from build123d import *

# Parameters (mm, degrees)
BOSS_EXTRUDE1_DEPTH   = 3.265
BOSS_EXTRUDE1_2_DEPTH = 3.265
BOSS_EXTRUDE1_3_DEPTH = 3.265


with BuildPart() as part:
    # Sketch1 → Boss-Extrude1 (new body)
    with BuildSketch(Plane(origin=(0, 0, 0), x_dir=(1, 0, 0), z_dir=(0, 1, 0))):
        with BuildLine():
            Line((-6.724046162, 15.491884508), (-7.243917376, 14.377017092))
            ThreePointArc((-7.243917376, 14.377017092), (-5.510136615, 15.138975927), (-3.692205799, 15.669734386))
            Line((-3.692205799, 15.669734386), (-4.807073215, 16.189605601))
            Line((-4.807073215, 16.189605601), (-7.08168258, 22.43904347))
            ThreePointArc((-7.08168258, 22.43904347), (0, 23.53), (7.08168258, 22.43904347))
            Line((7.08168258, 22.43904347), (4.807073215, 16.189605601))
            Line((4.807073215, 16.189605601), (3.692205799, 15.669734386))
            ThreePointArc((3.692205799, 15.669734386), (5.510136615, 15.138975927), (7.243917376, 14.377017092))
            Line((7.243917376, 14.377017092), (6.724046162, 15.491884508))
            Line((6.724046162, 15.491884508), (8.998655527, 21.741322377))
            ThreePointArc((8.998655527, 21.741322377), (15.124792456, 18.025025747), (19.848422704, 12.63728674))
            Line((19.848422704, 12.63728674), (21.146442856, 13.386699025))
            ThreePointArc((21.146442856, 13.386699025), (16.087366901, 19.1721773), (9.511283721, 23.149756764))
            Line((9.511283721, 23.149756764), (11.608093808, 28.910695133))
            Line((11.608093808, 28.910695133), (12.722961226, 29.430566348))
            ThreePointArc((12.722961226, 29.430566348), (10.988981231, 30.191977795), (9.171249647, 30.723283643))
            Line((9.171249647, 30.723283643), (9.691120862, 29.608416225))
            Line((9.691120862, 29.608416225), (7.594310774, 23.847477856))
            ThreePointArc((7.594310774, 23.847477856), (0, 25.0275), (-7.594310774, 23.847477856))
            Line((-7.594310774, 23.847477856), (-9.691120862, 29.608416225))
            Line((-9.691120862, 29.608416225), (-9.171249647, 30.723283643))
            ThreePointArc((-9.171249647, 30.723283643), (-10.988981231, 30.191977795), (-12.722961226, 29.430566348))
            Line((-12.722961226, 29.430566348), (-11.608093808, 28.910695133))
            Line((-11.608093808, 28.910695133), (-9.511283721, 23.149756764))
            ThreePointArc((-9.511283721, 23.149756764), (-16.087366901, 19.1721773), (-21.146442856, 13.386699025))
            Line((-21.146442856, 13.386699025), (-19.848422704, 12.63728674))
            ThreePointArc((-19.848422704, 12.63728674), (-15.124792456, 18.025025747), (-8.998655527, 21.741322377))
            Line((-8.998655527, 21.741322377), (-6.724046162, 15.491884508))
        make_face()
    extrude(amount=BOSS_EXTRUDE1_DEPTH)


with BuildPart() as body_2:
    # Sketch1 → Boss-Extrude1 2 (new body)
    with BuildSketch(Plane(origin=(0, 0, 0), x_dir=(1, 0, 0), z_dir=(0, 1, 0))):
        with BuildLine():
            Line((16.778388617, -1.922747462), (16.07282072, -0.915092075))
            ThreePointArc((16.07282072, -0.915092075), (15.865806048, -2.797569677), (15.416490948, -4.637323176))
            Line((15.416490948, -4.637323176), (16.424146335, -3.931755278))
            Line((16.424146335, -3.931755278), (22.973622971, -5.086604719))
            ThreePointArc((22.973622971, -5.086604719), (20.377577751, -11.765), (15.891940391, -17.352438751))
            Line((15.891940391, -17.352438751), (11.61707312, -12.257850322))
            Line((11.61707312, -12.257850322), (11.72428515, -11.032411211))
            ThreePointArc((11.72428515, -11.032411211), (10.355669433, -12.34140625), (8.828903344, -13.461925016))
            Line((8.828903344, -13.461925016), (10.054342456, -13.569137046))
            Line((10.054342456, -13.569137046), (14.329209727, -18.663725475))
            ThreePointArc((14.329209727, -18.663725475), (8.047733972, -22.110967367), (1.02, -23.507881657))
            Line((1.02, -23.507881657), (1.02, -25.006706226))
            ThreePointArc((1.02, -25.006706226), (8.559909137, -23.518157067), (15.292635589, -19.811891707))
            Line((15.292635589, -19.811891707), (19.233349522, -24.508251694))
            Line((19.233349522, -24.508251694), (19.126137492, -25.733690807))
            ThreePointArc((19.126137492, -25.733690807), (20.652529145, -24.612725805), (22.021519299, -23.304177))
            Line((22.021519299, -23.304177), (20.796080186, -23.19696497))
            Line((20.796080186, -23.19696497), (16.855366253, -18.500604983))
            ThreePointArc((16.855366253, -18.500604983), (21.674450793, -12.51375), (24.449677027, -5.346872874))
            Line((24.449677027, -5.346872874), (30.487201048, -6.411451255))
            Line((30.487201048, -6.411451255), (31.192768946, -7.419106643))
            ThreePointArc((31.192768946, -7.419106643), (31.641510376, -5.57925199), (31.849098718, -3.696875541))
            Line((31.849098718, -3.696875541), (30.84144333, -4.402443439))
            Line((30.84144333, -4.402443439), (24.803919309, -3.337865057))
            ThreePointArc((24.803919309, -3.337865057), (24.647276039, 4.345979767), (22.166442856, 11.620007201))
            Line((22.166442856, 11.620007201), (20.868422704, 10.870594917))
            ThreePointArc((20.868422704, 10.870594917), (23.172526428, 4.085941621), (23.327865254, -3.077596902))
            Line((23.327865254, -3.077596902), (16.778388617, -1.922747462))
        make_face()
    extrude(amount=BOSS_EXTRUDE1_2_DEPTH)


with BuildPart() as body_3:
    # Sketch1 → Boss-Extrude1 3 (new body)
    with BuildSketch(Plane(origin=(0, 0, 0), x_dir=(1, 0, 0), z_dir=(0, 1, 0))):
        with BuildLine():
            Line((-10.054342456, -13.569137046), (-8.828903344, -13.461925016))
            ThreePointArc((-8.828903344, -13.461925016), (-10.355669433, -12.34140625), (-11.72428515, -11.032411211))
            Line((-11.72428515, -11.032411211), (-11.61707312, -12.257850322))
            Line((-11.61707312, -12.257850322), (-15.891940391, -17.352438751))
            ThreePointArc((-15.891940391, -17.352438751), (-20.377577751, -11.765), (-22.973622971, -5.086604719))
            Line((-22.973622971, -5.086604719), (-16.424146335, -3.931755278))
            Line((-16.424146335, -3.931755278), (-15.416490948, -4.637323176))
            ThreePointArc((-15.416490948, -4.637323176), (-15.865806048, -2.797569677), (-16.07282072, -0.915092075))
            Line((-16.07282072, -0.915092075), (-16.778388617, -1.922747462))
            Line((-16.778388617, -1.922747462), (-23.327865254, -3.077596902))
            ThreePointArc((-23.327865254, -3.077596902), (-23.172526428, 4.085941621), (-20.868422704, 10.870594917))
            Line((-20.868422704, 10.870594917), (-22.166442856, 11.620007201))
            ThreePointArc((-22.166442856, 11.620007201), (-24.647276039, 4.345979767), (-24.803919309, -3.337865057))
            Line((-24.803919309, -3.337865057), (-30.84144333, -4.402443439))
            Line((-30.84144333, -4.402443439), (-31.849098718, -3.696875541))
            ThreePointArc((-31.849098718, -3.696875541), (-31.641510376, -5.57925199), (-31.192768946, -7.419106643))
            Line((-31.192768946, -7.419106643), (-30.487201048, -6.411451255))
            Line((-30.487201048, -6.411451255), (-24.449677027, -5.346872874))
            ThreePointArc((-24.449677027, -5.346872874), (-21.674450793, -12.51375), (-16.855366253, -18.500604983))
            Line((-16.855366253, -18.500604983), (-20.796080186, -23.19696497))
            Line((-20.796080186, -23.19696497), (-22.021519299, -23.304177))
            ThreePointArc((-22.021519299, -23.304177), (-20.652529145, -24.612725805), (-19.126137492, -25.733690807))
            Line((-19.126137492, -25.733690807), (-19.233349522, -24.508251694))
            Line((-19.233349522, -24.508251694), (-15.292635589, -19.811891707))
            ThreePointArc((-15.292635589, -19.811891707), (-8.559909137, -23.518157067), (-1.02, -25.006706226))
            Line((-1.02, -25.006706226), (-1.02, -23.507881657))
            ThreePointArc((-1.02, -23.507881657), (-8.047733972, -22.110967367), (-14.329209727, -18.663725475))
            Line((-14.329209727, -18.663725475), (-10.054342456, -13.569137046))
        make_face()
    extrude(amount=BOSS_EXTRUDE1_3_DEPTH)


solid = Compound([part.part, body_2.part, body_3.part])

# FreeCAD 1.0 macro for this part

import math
import FreeCAD as App
import Part
import Sketcher

V = App.Vector
Q = App.Units.Quantity

doc = App.newDocument("Part")
body = doc.addObject("PartDesign::Body", "Body")

sketch1 = body.newObject("Sketcher::SketchObject", "Sketch")
sketch1.AttachmentSupport = (doc.getObject("XZ_Plane"), [""])
sketch1.MapMode = "FlatFace"
sketch1.addGeometry([
    Part.LineSegment(V(-6.724046, -15.491885, 0), V(-7.243917, -14.377017, 0)),
    Part.ArcOfCircle(Part.Circle(V(-0.524402, -1.440784, 0), V(0, 0, 1), 14.577312), math.radians(-117.448883), math.radians(-102.551117)),
    Part.LineSegment(V(-3.692206, -15.669734, 0), V(-4.807073, -16.189606, 0)),
    Part.LineSegment(V(-4.807073, -16.189606, 0), V(-7.081683, -22.439043, 0)),
    Part.ArcOfCircle(Part.Circle(V(0, 0, 0), V(0, 0, 1), 23.53), math.radians(-107.515512), math.radians(-72.484488)),
    Part.LineSegment(V(7.081683, -22.439043, 0), V(4.807073, -16.189606, 0)),
    Part.LineSegment(V(4.807073, -16.189606, 0), V(3.692206, -15.669734, 0)),
    Part.ArcOfCircle(Part.Circle(V(0.524402, -1.440784, 0), V(0, 0, 1), 14.577312), math.radians(-77.448883), math.radians(-62.551117)),
    Part.LineSegment(V(7.243917, -14.377017, 0), V(6.724046, -15.491885, 0)),
    Part.LineSegment(V(6.724046, -15.491885, 0), V(8.998656, -21.741322, 0)),
    Part.ArcOfCircle(Part.Circle(V(0, 0, 0), V(0, 0, 1), 23.53), math.radians(-67.515512), math.radians(-32.484488)),
    Part.LineSegment(V(19.848423, -12.637287, 0), V(21.146443, -13.386699, 0)),
    Part.ArcOfCircle(Part.Circle(V(0, 0, 0), V(0, 0, 1), 25.0275), math.radians(-67.664254), math.radians(-32.335746)),
    Part.LineSegment(V(9.511284, -23.149757, 0), V(11.608094, -28.910695, 0)),
    Part.LineSegment(V(11.608094, -28.910695, 0), V(12.722961, -29.430566, 0)),
    Part.ArcOfCircle(Part.Circle(V(5.979726, -16.429162, 0), V(0, 0, 1), 14.646082), math.radians(-77.41371), math.radians(-62.58629)),
    Part.LineSegment(V(9.17125, -30.723284, 0), V(9.691121, -29.608416, 0)),
    Part.LineSegment(V(9.691121, -29.608416, 0), V(7.594311, -23.847478, 0)),
    Part.ArcOfCircle(Part.Circle(V(0, 0, 0), V(0, 0, 1), 25.0275), math.radians(-107.664254), math.radians(-72.335746)),
    Part.LineSegment(V(-7.594311, -23.847478, 0), V(-9.691121, -29.608416, 0)),
    Part.LineSegment(V(-9.691121, -29.608416, 0), V(-9.17125, -30.723284, 0)),
    Part.ArcOfCircle(Part.Circle(V(-5.979726, -16.429162, 0), V(0, 0, 1), 14.646082), math.radians(-117.41371), math.radians(-102.58629)),
    Part.LineSegment(V(-12.722961, -29.430566, 0), V(-11.608094, -28.910695, 0)),
    Part.LineSegment(V(-11.608094, -28.910695, 0), V(-9.511284, -23.149757, 0)),
    Part.ArcOfCircle(Part.Circle(V(0, 0, 0), V(0, 0, 1), 25.0275), math.radians(-147.664254), math.radians(-112.335746)),
    Part.LineSegment(V(-21.146443, -13.386699, 0), V(-19.848423, -12.637287, 0)),
    Part.ArcOfCircle(Part.Circle(V(0, 0, 0), V(0, 0, 1), 23.53), math.radians(-147.515512), math.radians(-112.484488)),
    Part.LineSegment(V(-8.998656, -21.741322, 0), V(-6.724046, -15.491885, 0)),
], False)
sketch1.addConstraint([
    Sketcher.Constraint("Coincident", 0, 2, 1, 1),
    Sketcher.Constraint("Coincident", 1, 2, 2, 1),
    Sketcher.Constraint("Coincident", 2, 2, 3, 1),
    Sketcher.Constraint("Coincident", 3, 2, 4, 1),
    Sketcher.Constraint("Coincident", 4, 2, 5, 1),
    Sketcher.Constraint("Coincident", 5, 2, 6, 1),
    Sketcher.Constraint("Coincident", 6, 2, 7, 1),
    Sketcher.Constraint("Coincident", 7, 2, 8, 1),
    Sketcher.Constraint("Coincident", 8, 2, 9, 1),
    Sketcher.Constraint("Coincident", 9, 2, 10, 1),
    Sketcher.Constraint("Coincident", 10, 2, 11, 1),
    Sketcher.Constraint("Coincident", 11, 2, 12, 2),
    Sketcher.Constraint("Coincident", 12, 1, 13, 1),
    Sketcher.Constraint("Coincident", 13, 2, 14, 1),
    Sketcher.Constraint("Coincident", 14, 2, 15, 2),
    Sketcher.Constraint("Coincident", 15, 1, 16, 1),
    Sketcher.Constraint("Coincident", 16, 2, 17, 1),
    Sketcher.Constraint("Coincident", 17, 2, 18, 2),
    Sketcher.Constraint("Coincident", 18, 1, 19, 1),
    Sketcher.Constraint("Coincident", 19, 2, 20, 1),
    Sketcher.Constraint("Coincident", 20, 2, 21, 2),
    Sketcher.Constraint("Coincident", 21, 1, 22, 1),
    Sketcher.Constraint("Coincident", 22, 2, 23, 1),
    Sketcher.Constraint("Coincident", 23, 2, 24, 2),
    Sketcher.Constraint("Coincident", 24, 1, 25, 1),
    Sketcher.Constraint("Coincident", 25, 2, 26, 1),
    Sketcher.Constraint("Coincident", 26, 2, 27, 1),
    Sketcher.Constraint("Coincident", 27, 2, 0, 1),
    Sketcher.Constraint("Coincident", 4, 3, -1, 1),
    Sketcher.Constraint("Coincident", 10, 3, -1, 1),
    Sketcher.Constraint("Coincident", 12, 3, -1, 1),
    Sketcher.Constraint("Coincident", 18, 3, -1, 1),
    Sketcher.Constraint("Coincident", 24, 3, -1, 1),
    Sketcher.Constraint("Coincident", 26, 3, -1, 1),
    Sketcher.Constraint("Radius", 4, 23.53),
    Sketcher.Constraint("Radius", 10, 23.53),
    Sketcher.Constraint("Radius", 26, 23.53),
    Sketcher.Constraint("Radius", 12, 25.0275),
    Sketcher.Constraint("Radius", 18, 25.0275),
    Sketcher.Constraint("Radius", 24, 25.0275),
    Sketcher.Constraint("Radius", 1, 14.577312),
    Sketcher.Constraint("Radius", 7, 14.577312),
    Sketcher.Constraint("Radius", 15, 14.646082),
    Sketcher.Constraint("Radius", 21, 14.646082),
    Sketcher.Constraint("DistanceY", 11, 2, -1, 1, 13.386699),
    Sketcher.Constraint("DistanceY", 24, 1, -1, 1, 13.386699),
    Sketcher.Constraint("DistanceX", 2, 2, 15, 3, 10.786799),
    Sketcher.Constraint("DistanceX", 21, 3, 5, 2, 10.786799),
    Sketcher.Constraint("DistanceX", 4, 2, 12, 1, 2.429601),
    Sketcher.Constraint("DistanceX", 23, 2, 3, 2, 2.429601),
    Sketcher.Constraint("Distance", 0, 1.23012),
    Sketcher.Constraint("Distance", 2, 1.23012),
    Sketcher.Constraint("Distance", 6, 1.23012),
    Sketcher.Constraint("Distance", 8, 1.23012),
    Sketcher.Constraint("Distance", 14, 1.23012),
    Sketcher.Constraint("Distance", 16, 1.23012),
    Sketcher.Constraint("Distance", 20, 1.23012),
    Sketcher.Constraint("Distance", 22, 1.23012),
    Sketcher.Constraint("DistanceX", -1, 1, 14, 2, 12.722961),
    Sketcher.Constraint("DistanceX", -1, 1, 15, 1, 9.17125),
    Sketcher.Constraint("DistanceX", -1, 1, 16, 2, 9.691121),
    Sketcher.Constraint("DistanceX", -1, 1, 17, 2, 7.594311),
    Sketcher.Constraint("DistanceX", 18, 1, -1, 1, 7.594311),
    Sketcher.Constraint("DistanceX", 19, 2, -1, 1, 9.691121),
    Sketcher.Constraint("DistanceX", 20, 2, -1, 1, 9.17125),
    Sketcher.Constraint("DistanceX", 21, 1, -1, 1, 12.722961),
    Sketcher.Constraint("DistanceY", 15, 3, 7, 3, 14.988378),
    Sketcher.Constraint("DistanceX", 1, 3, 15, 3, 6.504128),
    Sketcher.Constraint("DistanceY", 15, 3, 1, 3, 14.988378),
    Sketcher.Constraint("DistanceY", 21, 3, 1, 3, 14.988378),
    Sketcher.Constraint("DistanceX", 21, 3, 7, 3, 6.504128),
    Sketcher.Constraint("DistanceX", 0, 2, 21, 3, 1.264191),
    Sketcher.Constraint("DistanceX", 21, 3, 1, 2, 2.28752),
    Sketcher.Constraint("DistanceX", 1, 2, 15, 3, 9.671932),
    Sketcher.Constraint("DistanceY", 3, 2, 21, 3, 6.009881),
    Sketcher.Constraint("DistanceX", 3, 2, 2, 2, 2.274609),
    Sketcher.Constraint("DistanceY", 4, 2, 15, 3, 6.009881),
    Sketcher.Constraint("DistanceX", 1, 2, 4, 2, 10.773888),
    Sketcher.Constraint("DistanceY", 5, 2, 1, 2, 0.519871),
    Sketcher.Constraint("DistanceX", 15, 3, 7, 2, 1.264191),
    Sketcher.Constraint("DistanceX", 15, 3, 8, 2, 0.74432),
    Sketcher.Constraint("DistanceY", 4, 2, 9, 2, 0.697721),
    Sketcher.Constraint("DistanceY", 7, 2, 10, 2, 1.73973),
    Sketcher.Constraint("DistanceX", 12, 1, 13, 2, 2.09681),
    Sketcher.Constraint("DistanceY", 21, 1, 22, 2, 0.519871),
    Sketcher.Constraint("DistanceX", 24, 1, 25, 2, 1.29802),
    Sketcher.Constraint("DistanceX", 23, 2, 26, 2, 0.512628),
    Sketcher.Constraint("DistanceX", 27, 2, 21, 3, 0.74432),
])
pad1 = body.newObject("PartDesign::Pad", "Pad")
pad1.Profile = sketch1
pad1.Length = 3.265
pad1.Reversed = True
body2 = doc.addObject("PartDesign::Body", "Body001")

sketch2 = body2.newObject("Sketcher::SketchObject", "Sketch001")
sketch2.AttachmentSupport = (doc.getObject("XZ_Plane001"), [""])
sketch2.MapMode = "FlatFace"
sketch2.addGeometry([
    Part.LineSegment(V(16.8, 1.9, 0), V(16.1, 0.9, 0)),
    Part.ArcOfCircle(Part.Circle(V(1.5, 0.3, 0), V(0, 0, 1), 14.6), math.radians(2.55), math.radians(17.45)),
    Part.LineSegment(V(15.4, 4.6, 0), V(16.4, 3.9, 0)),
    Part.LineSegment(V(16.4, 3.9, 0), V(23, 5.1, 0)),
    Part.ArcOfCircle(Part.Circle(V(0, 0, 0), V(0, 0, 1), 23.5), math.radians(12), math.radians(48)),
    Part.LineSegment(V(15.9, 17.4, 0), V(11.6, 12.3, 0)),
    Part.LineSegment(V(11.6, 12.3, 0), V(11.7, 11, 0)),
    Part.ArcOfCircle(Part.Circle(V(1, 1.2, 0), V(0, 0, 1), 14.6), math.radians(42.55), math.radians(57.45)),
    Part.LineSegment(V(8.8, 13.5, 0), V(10.1, 13.6, 0)),
    Part.LineSegment(V(10.1, 13.6, 0), V(14.3, 18.7, 0)),
    Part.ArcOfCircle(Part.Circle(V(0, 0, 0), V(0, 0, 1), 23.5), math.radians(52), math.radians(88)),
    Part.LineSegment(V(1, 23.5, 0), V(1, 25, 0)),
    Part.ArcOfCircle(Part.Circle(V(0, 0, 0), V(0, 0, 1), 25), math.radians(52), math.radians(88)),
    Part.LineSegment(V(15.3, 19.8, 0), V(19.2, 24.5, 0)),
    Part.LineSegment(V(19.2, 24.5, 0), V(19.1, 25.7, 0)),
    Part.ArcOfCircle(Part.Circle(V(11.2, 13.4, 0), V(0, 0, 1), 14.6), math.radians(42.59), math.radians(57.41)),
    Part.LineSegment(V(22, 23.3, 0), V(20.8, 23.2, 0)),
    Part.LineSegment(V(20.8, 23.2, 0), V(16.9, 18.5, 0)),
    Part.ArcOfCircle(Part.Circle(V(0, 0, 0), V(0, 0, 1), 25), math.radians(12), math.radians(48)),
    Part.LineSegment(V(24.4, 5.3, 0), V(30.5, 6.4, 0)),
    Part.LineSegment(V(30.5, 6.4, 0), V(31.2, 7.4, 0)),
    Part.ArcOfCircle(Part.Circle(V(17.2, 3, 0), V(0, 0, 1), 14.6), math.radians(2.59), math.radians(17.41)),
    Part.LineSegment(V(31.8, 3.7, 0), V(30.8, 4.4, 0)),
    Part.LineSegment(V(30.8, 4.4, 0), V(24.8, 3.3, 0)),
    Part.ArcOfCircle(Part.Circle(V(0, 0, 0), V(0, 0, 1), 25), math.radians(-28), math.radians(8)),
    Part.LineSegment(V(22.2, -11.6, 0), V(20.9, -10.9, 0)),
    Part.ArcOfCircle(Part.Circle(V(0, 0, 0), V(0, 0, 1), 23.5), math.radians(-28), math.radians(8)),
    Part.LineSegment(V(23.3, 3.1, 0), V(16.8, 1.9, 0)),
], False)
sketch2.addConstraint([
    Sketcher.Constraint("Coincident", 0, 2, 1, 1),
    Sketcher.Constraint("Coincident", 1, 2, 2, 1),
    Sketcher.Constraint("Coincident", 2, 2, 3, 1),
    Sketcher.Constraint("Coincident", 3, 2, 4, 1),
    Sketcher.Constraint("Coincident", 4, 2, 5, 1),
    Sketcher.Constraint("Coincident", 5, 2, 6, 1),
    Sketcher.Constraint("Coincident", 6, 2, 7, 1),
    Sketcher.Constraint("Coincident", 7, 2, 8, 1),
    Sketcher.Constraint("Coincident", 8, 2, 9, 1),
    Sketcher.Constraint("Coincident", 9, 2, 10, 1),
    Sketcher.Constraint("Coincident", 10, 2, 11, 1),
    Sketcher.Constraint("Coincident", 11, 2, 12, 2),
    Sketcher.Constraint("Coincident", 12, 1, 13, 1),
    Sketcher.Constraint("Coincident", 13, 2, 14, 1),
    Sketcher.Constraint("Coincident", 14, 2, 15, 2),
    Sketcher.Constraint("Coincident", 15, 1, 16, 1),
    Sketcher.Constraint("Coincident", 16, 2, 17, 1),
    Sketcher.Constraint("Coincident", 17, 2, 18, 2),
    Sketcher.Constraint("Coincident", 18, 1, 19, 1),
    Sketcher.Constraint("Coincident", 19, 2, 20, 1),
    Sketcher.Constraint("Coincident", 20, 2, 21, 2),
    Sketcher.Constraint("Coincident", 21, 1, 22, 1),
    Sketcher.Constraint("Coincident", 22, 2, 23, 1),
    Sketcher.Constraint("Coincident", 23, 2, 24, 2),
    Sketcher.Constraint("Coincident", 24, 1, 25, 1),
    Sketcher.Constraint("Coincident", 25, 2, 26, 1),
    Sketcher.Constraint("Coincident", 26, 2, 27, 1),
    Sketcher.Constraint("Coincident", 27, 2, 0, 1),
    Sketcher.Constraint("Vertical", 11),
    Sketcher.Constraint("Coincident", 4, 3, -1, 1),
    Sketcher.Constraint("Coincident", 10, 3, -1, 1),
    Sketcher.Constraint("Coincident", 12, 3, -1, 1),
    Sketcher.Constraint("Coincident", 18, 3, -1, 1),
    Sketcher.Constraint("Coincident", 24, 3, -1, 1),
    Sketcher.Constraint("Coincident", 26, 3, -1, 1),
    Sketcher.Constraint("Equal", 1, 7),
    Sketcher.Constraint("Equal", 4, 10),
    Sketcher.Constraint("Equal", 12, 18),
    Sketcher.Constraint("Equal", 15, 21),
    Sketcher.Constraint("Equal", 18, 24),
    Sketcher.Constraint("Equal", 10, 26),
    Sketcher.Constraint("Perpendicular", 0, 2),
    Sketcher.Constraint("Perpendicular", 6, 8),
    Sketcher.Constraint("Parallel", 5, 9),
    Sketcher.Constraint("Parallel", 9, 13),
    Sketcher.Constraint("Perpendicular", 8, 14),
    Sketcher.Constraint("Perpendicular", 14, 16),
    Sketcher.Constraint("Parallel", 13, 17),
    Sketcher.Constraint("Parallel", 3, 19),
    Sketcher.Constraint("Perpendicular", 2, 20),
    Sketcher.Constraint("Perpendicular", 20, 22),
    Sketcher.Constraint("Parallel", 19, 23),
    Sketcher.Constraint("Parallel", 23, 27),
    Sketcher.Constraint("Equal", 0, 2),
    Sketcher.Constraint("Equal", 3, 5),
    Sketcher.Constraint("Equal", 2, 6),
    Sketcher.Constraint("Equal", 6, 8),
    Sketcher.Constraint("Equal", 5, 9),
    Sketcher.Constraint("Equal", 8, 14),
    Sketcher.Constraint("Equal", 14, 16),
    Sketcher.Constraint("Equal", 13, 17),
    Sketcher.Constraint("Equal", 17, 19),
    Sketcher.Constraint("Equal", 16, 20),
    Sketcher.Constraint("Equal", 20, 22),
    Sketcher.Constraint("Equal", 19, 23),
    Sketcher.Constraint("Equal", 9, 27),
    Sketcher.Constraint("Angle", 0, Q("-125 deg")),
    Sketcher.Constraint("Angle", 3, Q("10 deg")),
    Sketcher.Constraint("Angle", 5, Q("-130 deg")),
    Sketcher.Constraint("Angle", 6, Q("-85 deg")),
    Sketcher.Constraint("Angle", 25, Q("150 deg")),
    Sketcher.Constraint("Radius", 4, 23.53),
    Sketcher.Constraint("Radius", 12, 25.0275),
    Sketcher.Constraint("DistanceX", -1, 1, 10, 2, 1.02),
    Sketcher.Constraint("Radius", 1, 14.577312),
    Sketcher.Constraint("Radius", 15, 14.646083),
    Sketcher.Constraint("DistanceX", 15, 3, 9, 2, 3.091001),
    Sketcher.Constraint("DistanceX", -1, 1, 19, 2, 30.487201),
    Sketcher.Constraint("DistanceX", -1, 1, 21, 1, 31.849099),
    Sketcher.Constraint("DistanceY", 1, 2, 7, 2, 8.824602),
    Sketcher.Constraint("DistanceY", 8, 2, 4, 2, 3.783302),
    Sketcher.Constraint("DistanceY", 7, 2, 9, 2, 5.2018),
    Sketcher.Constraint("DistanceX", 12, 1, 14, 2, 3.833502),
    Sketcher.Constraint("DistanceY", 12, 1, 14, 2, 5.921799),
    Sketcher.Constraint("DistanceY", 3, 2, 20, 2, 2.332502),
    Sketcher.Constraint("DistanceY", 24, 1, 0, 2, 12.535099),
    Sketcher.Constraint("DistanceX", 0, 2, 25, 2, 4.795602),
    Sketcher.Constraint("DistanceY", -1, 1, 12, 1, 19.811892),
])
pad2 = body2.newObject("PartDesign::Pad", "Pad001")
pad2.Profile = sketch2
pad2.Length = 3.265
pad2.Reversed = True
body3 = doc.addObject("PartDesign::Body", "Body002")

sketch3 = body3.newObject("Sketcher::SketchObject", "Sketch002")
sketch3.AttachmentSupport = (doc.getObject("XZ_Plane002"), [""])
sketch3.MapMode = "FlatFace"
sketch3.addGeometry([
    Part.LineSegment(V(-10.1, 13.6, 0), V(-8.8, 13.5, 0)),
    Part.ArcOfCircle(Part.Circle(V(-1, 1.2, 0), V(0, 0, 1), 14.6), math.radians(122.55), math.radians(137.45)),
    Part.LineSegment(V(-11.7, 11, 0), V(-11.6, 12.3, 0)),
    Part.LineSegment(V(-11.6, 12.3, 0), V(-15.9, 17.4, 0)),
    Part.ArcOfCircle(Part.Circle(V(0, 0, 0), V(0, 0, 1), 23.5), math.radians(132), math.radians(168)),
    Part.LineSegment(V(-23, 5.1, 0), V(-16.4, 3.9, 0)),
    Part.LineSegment(V(-16.4, 3.9, 0), V(-15.4, 4.6, 0)),
    Part.ArcOfCircle(Part.Circle(V(-1.5, 0.3, 0), V(0, 0, 1), 14.6), math.radians(162.55), math.radians(177.45)),
    Part.LineSegment(V(-16.1, 0.9, 0), V(-16.8, 1.9, 0)),
    Part.LineSegment(V(-16.8, 1.9, 0), V(-23.3, 3.1, 0)),
    Part.ArcOfCircle(Part.Circle(V(0, 0, 0), V(0, 0, 1), 23.5), math.radians(172), math.radians(208)),
    Part.LineSegment(V(-20.9, -10.9, 0), V(-22.2, -11.6, 0)),
    Part.ArcOfCircle(Part.Circle(V(0, 0, 0), V(0, 0, 1), 25), math.radians(172), math.radians(208)),
    Part.LineSegment(V(-24.8, 3.3, 0), V(-30.8, 4.4, 0)),
    Part.LineSegment(V(-30.8, 4.4, 0), V(-31.8, 3.7, 0)),
    Part.ArcOfCircle(Part.Circle(V(-17.2, 3, 0), V(0, 0, 1), 14.6), math.radians(162.59), math.radians(177.41)),
    Part.LineSegment(V(-31.2, 7.4, 0), V(-30.5, 6.4, 0)),
    Part.LineSegment(V(-30.5, 6.4, 0), V(-24.4, 5.3, 0)),
    Part.ArcOfCircle(Part.Circle(V(0, 0, 0), V(0, 0, 1), 25), math.radians(132), math.radians(168)),
    Part.LineSegment(V(-16.9, 18.5, 0), V(-20.8, 23.2, 0)),
    Part.LineSegment(V(-20.8, 23.2, 0), V(-22, 23.3, 0)),
    Part.ArcOfCircle(Part.Circle(V(-11.2, 13.4, 0), V(0, 0, 1), 14.6), math.radians(122.59), math.radians(137.41)),
    Part.LineSegment(V(-19.1, 25.7, 0), V(-19.2, 24.5, 0)),
    Part.LineSegment(V(-19.2, 24.5, 0), V(-15.3, 19.8, 0)),
    Part.ArcOfCircle(Part.Circle(V(0, 0, 0), V(0, 0, 1), 25), math.radians(92), math.radians(128)),
    Part.LineSegment(V(-1, 25, 0), V(-1, 23.5, 0)),
    Part.ArcOfCircle(Part.Circle(V(0, 0, 0), V(0, 0, 1), 23.5), math.radians(92), math.radians(128)),
    Part.LineSegment(V(-14.3, 18.7, 0), V(-10.1, 13.6, 0)),
], False)
sketch3.addConstraint([
    Sketcher.Constraint("Coincident", 0, 2, 1, 1),
    Sketcher.Constraint("Coincident", 1, 2, 2, 1),
    Sketcher.Constraint("Coincident", 2, 2, 3, 1),
    Sketcher.Constraint("Coincident", 3, 2, 4, 1),
    Sketcher.Constraint("Coincident", 4, 2, 5, 1),
    Sketcher.Constraint("Coincident", 5, 2, 6, 1),
    Sketcher.Constraint("Coincident", 6, 2, 7, 1),
    Sketcher.Constraint("Coincident", 7, 2, 8, 1),
    Sketcher.Constraint("Coincident", 8, 2, 9, 1),
    Sketcher.Constraint("Coincident", 9, 2, 10, 1),
    Sketcher.Constraint("Coincident", 10, 2, 11, 1),
    Sketcher.Constraint("Coincident", 11, 2, 12, 2),
    Sketcher.Constraint("Coincident", 12, 1, 13, 1),
    Sketcher.Constraint("Coincident", 13, 2, 14, 1),
    Sketcher.Constraint("Coincident", 14, 2, 15, 2),
    Sketcher.Constraint("Coincident", 15, 1, 16, 1),
    Sketcher.Constraint("Coincident", 16, 2, 17, 1),
    Sketcher.Constraint("Coincident", 17, 2, 18, 2),
    Sketcher.Constraint("Coincident", 18, 1, 19, 1),
    Sketcher.Constraint("Coincident", 19, 2, 20, 1),
    Sketcher.Constraint("Coincident", 20, 2, 21, 2),
    Sketcher.Constraint("Coincident", 21, 1, 22, 1),
    Sketcher.Constraint("Coincident", 22, 2, 23, 1),
    Sketcher.Constraint("Coincident", 23, 2, 24, 2),
    Sketcher.Constraint("Coincident", 24, 1, 25, 1),
    Sketcher.Constraint("Coincident", 25, 2, 26, 1),
    Sketcher.Constraint("Coincident", 26, 2, 27, 1),
    Sketcher.Constraint("Coincident", 27, 2, 0, 1),
    Sketcher.Constraint("Vertical", 25),
    Sketcher.Constraint("Coincident", 4, 3, -1, 1),
    Sketcher.Constraint("Coincident", 10, 3, -1, 1),
    Sketcher.Constraint("Coincident", 12, 3, -1, 1),
    Sketcher.Constraint("Coincident", 18, 3, -1, 1),
    Sketcher.Constraint("Coincident", 24, 3, -1, 1),
    Sketcher.Constraint("Coincident", 26, 3, -1, 1),
    Sketcher.Constraint("Equal", 1, 7),
    Sketcher.Constraint("Equal", 4, 10),
    Sketcher.Constraint("Equal", 12, 18),
    Sketcher.Constraint("Equal", 15, 21),
    Sketcher.Constraint("Equal", 18, 24),
    Sketcher.Constraint("Equal", 10, 26),
    Sketcher.Constraint("Perpendicular", 0, 2),
    Sketcher.Constraint("Perpendicular", 6, 8),
    Sketcher.Constraint("Parallel", 5, 9),
    Sketcher.Constraint("Parallel", 9, 13),
    Sketcher.Constraint("Perpendicular", 8, 14),
    Sketcher.Constraint("Perpendicular", 14, 16),
    Sketcher.Constraint("Parallel", 13, 17),
    Sketcher.Constraint("Parallel", 3, 19),
    Sketcher.Constraint("Perpendicular", 2, 20),
    Sketcher.Constraint("Perpendicular", 20, 22),
    Sketcher.Constraint("Parallel", 19, 23),
    Sketcher.Constraint("Parallel", 23, 27),
    Sketcher.Constraint("Equal", 0, 2),
    Sketcher.Constraint("Equal", 3, 5),
    Sketcher.Constraint("Equal", 2, 6),
    Sketcher.Constraint("Equal", 6, 8),
    Sketcher.Constraint("Equal", 5, 9),
    Sketcher.Constraint("Equal", 8, 14),
    Sketcher.Constraint("Equal", 14, 16),
    Sketcher.Constraint("Equal", 13, 17),
    Sketcher.Constraint("Equal", 17, 19),
    Sketcher.Constraint("Equal", 16, 20),
    Sketcher.Constraint("Equal", 20, 22),
    Sketcher.Constraint("Equal", 19, 23),
    Sketcher.Constraint("Equal", 9, 27),
    Sketcher.Constraint("Angle", 0, Q("-5 deg")),
    Sketcher.Constraint("Angle", 3, Q("130 deg")),
    Sketcher.Constraint("Angle", 5, Q("-10 deg")),
    Sketcher.Constraint("Angle", 6, Q("35 deg")),
    Sketcher.Constraint("Angle", 11, Q("-150 deg")),
    Sketcher.Constraint("Radius", 4, 23.53),
    Sketcher.Constraint("Radius", 12, 25.0275),
    Sketcher.Constraint("DistanceX", 24, 1, -1, 1, 1.02),
    Sketcher.Constraint("Radius", 1, 14.577312),
    Sketcher.Constraint("Radius", 15, 14.646083),
    Sketcher.Constraint("DistanceY", 21, 3, 20, 2, 9.911001),
    Sketcher.Constraint("DistanceX", 26, 2, 21, 3, 3.091001),
    Sketcher.Constraint("DistanceX", 14, 2, -1, 1, 31.849099),
    Sketcher.Constraint("DistanceX", 16, 2, -1, 1, 30.487201),
    Sketcher.Constraint("DistanceX", 10, 2, 7, 2, 4.795602),
    Sketcher.Constraint("DistanceY", 11, 2, 7, 2, 12.535099),
    Sketcher.Constraint("DistanceY", 4, 2, 15, 1, 2.332502),
    Sketcher.Constraint("DistanceX", 21, 1, 23, 2, 3.833502),
    Sketcher.Constraint("DistanceY", 23, 2, 21, 1, 5.921799),
    Sketcher.Constraint("DistanceX", 21, 3, -1, 1, 11.238209),
    Sketcher.Constraint("DistanceY", -1, 1, 1, 2, 11.032411),
    Sketcher.Constraint("DistanceX", 3, 2, -1, 1, 15.89194),
])
pad3 = body3.newObject("PartDesign::Pad", "Pad002")
pad3.Profile = sketch3
pad3.Length = 3.265
pad3.Reversed = True

doc.recompute()
